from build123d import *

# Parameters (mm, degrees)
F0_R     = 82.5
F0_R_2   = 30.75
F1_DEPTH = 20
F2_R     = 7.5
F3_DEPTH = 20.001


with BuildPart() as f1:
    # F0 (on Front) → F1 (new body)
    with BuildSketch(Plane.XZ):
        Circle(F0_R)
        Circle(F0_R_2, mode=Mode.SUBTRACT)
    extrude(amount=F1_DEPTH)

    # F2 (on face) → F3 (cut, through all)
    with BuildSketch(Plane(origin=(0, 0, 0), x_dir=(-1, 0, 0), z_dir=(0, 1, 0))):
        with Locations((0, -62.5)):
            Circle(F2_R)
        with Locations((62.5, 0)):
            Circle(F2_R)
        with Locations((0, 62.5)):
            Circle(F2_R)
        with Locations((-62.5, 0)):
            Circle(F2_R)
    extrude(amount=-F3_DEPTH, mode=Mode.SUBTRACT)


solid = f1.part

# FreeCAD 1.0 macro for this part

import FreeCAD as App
import Part
import Sketcher

doc = App.newDocument("Part")
body = doc.addObject("PartDesign::Body", "Body")

# Sketch on XZ plane
sketch1 = body.newObject("Sketcher::SketchObject", "Sketch")
sketch1.AttachmentSupport = (doc.getObject("XZ_Plane"), [""])
sketch1.MapMode = "FlatFace"
sketch1.addGeometry([
    Part.Circle(App.Vector(0, 0, 0), App.Vector(0, 0, 1), 82),
    Part.Circle(App.Vector(0, 0, 0), App.Vector(0, 0, 1), 31),
], False)
sketch1.addConstraint([
    Sketcher.Constraint("Coincident", 0, 3, -1, 1),
    Sketcher.Constraint("Coincident", 1, 3, -1, 1),
    Sketcher.Constraint("Diameter", 0, 165.0),
    Sketcher.Constraint("Diameter", 1, 61.5),
])
pad1 = body.newObject("PartDesign::Pad", "Pad")
pad1.Profile = sketch1
pad1.Length = 20

# Sketch on XZ plane
sketch2 = body.newObject("Sketcher::SketchObject", "Sketch001")
sketch2.AttachmentSupport = (doc.getObject("XZ_Plane"), [""])
sketch2.MapMode = "FlatFace"
sketch2.addGeometry([
    Part.Circle(App.Vector(0, -62, 0), App.Vector(0, 0, 1), 8),
    Part.Circle(App.Vector(-62, 0, 0), App.Vector(0, 0, 1), 8),
    Part.Circle(App.Vector(0, 62, 0), App.Vector(0, 0, 1), 8),
    Part.Circle(App.Vector(62, 0, 0), App.Vector(0, 0, 1), 8),
], False)
sketch2.addConstraint([
    Sketcher.Constraint("Equal", 0, 1),
    Sketcher.Constraint("Equal", 1, 2),
    Sketcher.Constraint("Equal", 2, 3),
    Sketcher.Constraint("Symmetric", 0, 3, 2, 3, -1, 1),
    Sketcher.Constraint("Symmetric", 1, 3, 3, 3, -1, 1),
    Sketcher.Constraint("PointOnObject", 0, 3, -2),
    Sketcher.Constraint("PointOnObject", 1, 3, -1),
    Sketcher.Constraint("Diameter", 0, 15.0),
    Sketcher.Constraint("DistanceY", 0, 3, 2, 3, 125.0),
    Sketcher.Constraint("DistanceX", 1, 3, 3, 3, 125.0),
])
pocket1 = body.newObject("PartDesign::Pocket", "Pocket")
pocket1.Profile = sketch2
pocket1.Type = "ThroughAll"
pocket1.Reversed = True

doc.recompute()
